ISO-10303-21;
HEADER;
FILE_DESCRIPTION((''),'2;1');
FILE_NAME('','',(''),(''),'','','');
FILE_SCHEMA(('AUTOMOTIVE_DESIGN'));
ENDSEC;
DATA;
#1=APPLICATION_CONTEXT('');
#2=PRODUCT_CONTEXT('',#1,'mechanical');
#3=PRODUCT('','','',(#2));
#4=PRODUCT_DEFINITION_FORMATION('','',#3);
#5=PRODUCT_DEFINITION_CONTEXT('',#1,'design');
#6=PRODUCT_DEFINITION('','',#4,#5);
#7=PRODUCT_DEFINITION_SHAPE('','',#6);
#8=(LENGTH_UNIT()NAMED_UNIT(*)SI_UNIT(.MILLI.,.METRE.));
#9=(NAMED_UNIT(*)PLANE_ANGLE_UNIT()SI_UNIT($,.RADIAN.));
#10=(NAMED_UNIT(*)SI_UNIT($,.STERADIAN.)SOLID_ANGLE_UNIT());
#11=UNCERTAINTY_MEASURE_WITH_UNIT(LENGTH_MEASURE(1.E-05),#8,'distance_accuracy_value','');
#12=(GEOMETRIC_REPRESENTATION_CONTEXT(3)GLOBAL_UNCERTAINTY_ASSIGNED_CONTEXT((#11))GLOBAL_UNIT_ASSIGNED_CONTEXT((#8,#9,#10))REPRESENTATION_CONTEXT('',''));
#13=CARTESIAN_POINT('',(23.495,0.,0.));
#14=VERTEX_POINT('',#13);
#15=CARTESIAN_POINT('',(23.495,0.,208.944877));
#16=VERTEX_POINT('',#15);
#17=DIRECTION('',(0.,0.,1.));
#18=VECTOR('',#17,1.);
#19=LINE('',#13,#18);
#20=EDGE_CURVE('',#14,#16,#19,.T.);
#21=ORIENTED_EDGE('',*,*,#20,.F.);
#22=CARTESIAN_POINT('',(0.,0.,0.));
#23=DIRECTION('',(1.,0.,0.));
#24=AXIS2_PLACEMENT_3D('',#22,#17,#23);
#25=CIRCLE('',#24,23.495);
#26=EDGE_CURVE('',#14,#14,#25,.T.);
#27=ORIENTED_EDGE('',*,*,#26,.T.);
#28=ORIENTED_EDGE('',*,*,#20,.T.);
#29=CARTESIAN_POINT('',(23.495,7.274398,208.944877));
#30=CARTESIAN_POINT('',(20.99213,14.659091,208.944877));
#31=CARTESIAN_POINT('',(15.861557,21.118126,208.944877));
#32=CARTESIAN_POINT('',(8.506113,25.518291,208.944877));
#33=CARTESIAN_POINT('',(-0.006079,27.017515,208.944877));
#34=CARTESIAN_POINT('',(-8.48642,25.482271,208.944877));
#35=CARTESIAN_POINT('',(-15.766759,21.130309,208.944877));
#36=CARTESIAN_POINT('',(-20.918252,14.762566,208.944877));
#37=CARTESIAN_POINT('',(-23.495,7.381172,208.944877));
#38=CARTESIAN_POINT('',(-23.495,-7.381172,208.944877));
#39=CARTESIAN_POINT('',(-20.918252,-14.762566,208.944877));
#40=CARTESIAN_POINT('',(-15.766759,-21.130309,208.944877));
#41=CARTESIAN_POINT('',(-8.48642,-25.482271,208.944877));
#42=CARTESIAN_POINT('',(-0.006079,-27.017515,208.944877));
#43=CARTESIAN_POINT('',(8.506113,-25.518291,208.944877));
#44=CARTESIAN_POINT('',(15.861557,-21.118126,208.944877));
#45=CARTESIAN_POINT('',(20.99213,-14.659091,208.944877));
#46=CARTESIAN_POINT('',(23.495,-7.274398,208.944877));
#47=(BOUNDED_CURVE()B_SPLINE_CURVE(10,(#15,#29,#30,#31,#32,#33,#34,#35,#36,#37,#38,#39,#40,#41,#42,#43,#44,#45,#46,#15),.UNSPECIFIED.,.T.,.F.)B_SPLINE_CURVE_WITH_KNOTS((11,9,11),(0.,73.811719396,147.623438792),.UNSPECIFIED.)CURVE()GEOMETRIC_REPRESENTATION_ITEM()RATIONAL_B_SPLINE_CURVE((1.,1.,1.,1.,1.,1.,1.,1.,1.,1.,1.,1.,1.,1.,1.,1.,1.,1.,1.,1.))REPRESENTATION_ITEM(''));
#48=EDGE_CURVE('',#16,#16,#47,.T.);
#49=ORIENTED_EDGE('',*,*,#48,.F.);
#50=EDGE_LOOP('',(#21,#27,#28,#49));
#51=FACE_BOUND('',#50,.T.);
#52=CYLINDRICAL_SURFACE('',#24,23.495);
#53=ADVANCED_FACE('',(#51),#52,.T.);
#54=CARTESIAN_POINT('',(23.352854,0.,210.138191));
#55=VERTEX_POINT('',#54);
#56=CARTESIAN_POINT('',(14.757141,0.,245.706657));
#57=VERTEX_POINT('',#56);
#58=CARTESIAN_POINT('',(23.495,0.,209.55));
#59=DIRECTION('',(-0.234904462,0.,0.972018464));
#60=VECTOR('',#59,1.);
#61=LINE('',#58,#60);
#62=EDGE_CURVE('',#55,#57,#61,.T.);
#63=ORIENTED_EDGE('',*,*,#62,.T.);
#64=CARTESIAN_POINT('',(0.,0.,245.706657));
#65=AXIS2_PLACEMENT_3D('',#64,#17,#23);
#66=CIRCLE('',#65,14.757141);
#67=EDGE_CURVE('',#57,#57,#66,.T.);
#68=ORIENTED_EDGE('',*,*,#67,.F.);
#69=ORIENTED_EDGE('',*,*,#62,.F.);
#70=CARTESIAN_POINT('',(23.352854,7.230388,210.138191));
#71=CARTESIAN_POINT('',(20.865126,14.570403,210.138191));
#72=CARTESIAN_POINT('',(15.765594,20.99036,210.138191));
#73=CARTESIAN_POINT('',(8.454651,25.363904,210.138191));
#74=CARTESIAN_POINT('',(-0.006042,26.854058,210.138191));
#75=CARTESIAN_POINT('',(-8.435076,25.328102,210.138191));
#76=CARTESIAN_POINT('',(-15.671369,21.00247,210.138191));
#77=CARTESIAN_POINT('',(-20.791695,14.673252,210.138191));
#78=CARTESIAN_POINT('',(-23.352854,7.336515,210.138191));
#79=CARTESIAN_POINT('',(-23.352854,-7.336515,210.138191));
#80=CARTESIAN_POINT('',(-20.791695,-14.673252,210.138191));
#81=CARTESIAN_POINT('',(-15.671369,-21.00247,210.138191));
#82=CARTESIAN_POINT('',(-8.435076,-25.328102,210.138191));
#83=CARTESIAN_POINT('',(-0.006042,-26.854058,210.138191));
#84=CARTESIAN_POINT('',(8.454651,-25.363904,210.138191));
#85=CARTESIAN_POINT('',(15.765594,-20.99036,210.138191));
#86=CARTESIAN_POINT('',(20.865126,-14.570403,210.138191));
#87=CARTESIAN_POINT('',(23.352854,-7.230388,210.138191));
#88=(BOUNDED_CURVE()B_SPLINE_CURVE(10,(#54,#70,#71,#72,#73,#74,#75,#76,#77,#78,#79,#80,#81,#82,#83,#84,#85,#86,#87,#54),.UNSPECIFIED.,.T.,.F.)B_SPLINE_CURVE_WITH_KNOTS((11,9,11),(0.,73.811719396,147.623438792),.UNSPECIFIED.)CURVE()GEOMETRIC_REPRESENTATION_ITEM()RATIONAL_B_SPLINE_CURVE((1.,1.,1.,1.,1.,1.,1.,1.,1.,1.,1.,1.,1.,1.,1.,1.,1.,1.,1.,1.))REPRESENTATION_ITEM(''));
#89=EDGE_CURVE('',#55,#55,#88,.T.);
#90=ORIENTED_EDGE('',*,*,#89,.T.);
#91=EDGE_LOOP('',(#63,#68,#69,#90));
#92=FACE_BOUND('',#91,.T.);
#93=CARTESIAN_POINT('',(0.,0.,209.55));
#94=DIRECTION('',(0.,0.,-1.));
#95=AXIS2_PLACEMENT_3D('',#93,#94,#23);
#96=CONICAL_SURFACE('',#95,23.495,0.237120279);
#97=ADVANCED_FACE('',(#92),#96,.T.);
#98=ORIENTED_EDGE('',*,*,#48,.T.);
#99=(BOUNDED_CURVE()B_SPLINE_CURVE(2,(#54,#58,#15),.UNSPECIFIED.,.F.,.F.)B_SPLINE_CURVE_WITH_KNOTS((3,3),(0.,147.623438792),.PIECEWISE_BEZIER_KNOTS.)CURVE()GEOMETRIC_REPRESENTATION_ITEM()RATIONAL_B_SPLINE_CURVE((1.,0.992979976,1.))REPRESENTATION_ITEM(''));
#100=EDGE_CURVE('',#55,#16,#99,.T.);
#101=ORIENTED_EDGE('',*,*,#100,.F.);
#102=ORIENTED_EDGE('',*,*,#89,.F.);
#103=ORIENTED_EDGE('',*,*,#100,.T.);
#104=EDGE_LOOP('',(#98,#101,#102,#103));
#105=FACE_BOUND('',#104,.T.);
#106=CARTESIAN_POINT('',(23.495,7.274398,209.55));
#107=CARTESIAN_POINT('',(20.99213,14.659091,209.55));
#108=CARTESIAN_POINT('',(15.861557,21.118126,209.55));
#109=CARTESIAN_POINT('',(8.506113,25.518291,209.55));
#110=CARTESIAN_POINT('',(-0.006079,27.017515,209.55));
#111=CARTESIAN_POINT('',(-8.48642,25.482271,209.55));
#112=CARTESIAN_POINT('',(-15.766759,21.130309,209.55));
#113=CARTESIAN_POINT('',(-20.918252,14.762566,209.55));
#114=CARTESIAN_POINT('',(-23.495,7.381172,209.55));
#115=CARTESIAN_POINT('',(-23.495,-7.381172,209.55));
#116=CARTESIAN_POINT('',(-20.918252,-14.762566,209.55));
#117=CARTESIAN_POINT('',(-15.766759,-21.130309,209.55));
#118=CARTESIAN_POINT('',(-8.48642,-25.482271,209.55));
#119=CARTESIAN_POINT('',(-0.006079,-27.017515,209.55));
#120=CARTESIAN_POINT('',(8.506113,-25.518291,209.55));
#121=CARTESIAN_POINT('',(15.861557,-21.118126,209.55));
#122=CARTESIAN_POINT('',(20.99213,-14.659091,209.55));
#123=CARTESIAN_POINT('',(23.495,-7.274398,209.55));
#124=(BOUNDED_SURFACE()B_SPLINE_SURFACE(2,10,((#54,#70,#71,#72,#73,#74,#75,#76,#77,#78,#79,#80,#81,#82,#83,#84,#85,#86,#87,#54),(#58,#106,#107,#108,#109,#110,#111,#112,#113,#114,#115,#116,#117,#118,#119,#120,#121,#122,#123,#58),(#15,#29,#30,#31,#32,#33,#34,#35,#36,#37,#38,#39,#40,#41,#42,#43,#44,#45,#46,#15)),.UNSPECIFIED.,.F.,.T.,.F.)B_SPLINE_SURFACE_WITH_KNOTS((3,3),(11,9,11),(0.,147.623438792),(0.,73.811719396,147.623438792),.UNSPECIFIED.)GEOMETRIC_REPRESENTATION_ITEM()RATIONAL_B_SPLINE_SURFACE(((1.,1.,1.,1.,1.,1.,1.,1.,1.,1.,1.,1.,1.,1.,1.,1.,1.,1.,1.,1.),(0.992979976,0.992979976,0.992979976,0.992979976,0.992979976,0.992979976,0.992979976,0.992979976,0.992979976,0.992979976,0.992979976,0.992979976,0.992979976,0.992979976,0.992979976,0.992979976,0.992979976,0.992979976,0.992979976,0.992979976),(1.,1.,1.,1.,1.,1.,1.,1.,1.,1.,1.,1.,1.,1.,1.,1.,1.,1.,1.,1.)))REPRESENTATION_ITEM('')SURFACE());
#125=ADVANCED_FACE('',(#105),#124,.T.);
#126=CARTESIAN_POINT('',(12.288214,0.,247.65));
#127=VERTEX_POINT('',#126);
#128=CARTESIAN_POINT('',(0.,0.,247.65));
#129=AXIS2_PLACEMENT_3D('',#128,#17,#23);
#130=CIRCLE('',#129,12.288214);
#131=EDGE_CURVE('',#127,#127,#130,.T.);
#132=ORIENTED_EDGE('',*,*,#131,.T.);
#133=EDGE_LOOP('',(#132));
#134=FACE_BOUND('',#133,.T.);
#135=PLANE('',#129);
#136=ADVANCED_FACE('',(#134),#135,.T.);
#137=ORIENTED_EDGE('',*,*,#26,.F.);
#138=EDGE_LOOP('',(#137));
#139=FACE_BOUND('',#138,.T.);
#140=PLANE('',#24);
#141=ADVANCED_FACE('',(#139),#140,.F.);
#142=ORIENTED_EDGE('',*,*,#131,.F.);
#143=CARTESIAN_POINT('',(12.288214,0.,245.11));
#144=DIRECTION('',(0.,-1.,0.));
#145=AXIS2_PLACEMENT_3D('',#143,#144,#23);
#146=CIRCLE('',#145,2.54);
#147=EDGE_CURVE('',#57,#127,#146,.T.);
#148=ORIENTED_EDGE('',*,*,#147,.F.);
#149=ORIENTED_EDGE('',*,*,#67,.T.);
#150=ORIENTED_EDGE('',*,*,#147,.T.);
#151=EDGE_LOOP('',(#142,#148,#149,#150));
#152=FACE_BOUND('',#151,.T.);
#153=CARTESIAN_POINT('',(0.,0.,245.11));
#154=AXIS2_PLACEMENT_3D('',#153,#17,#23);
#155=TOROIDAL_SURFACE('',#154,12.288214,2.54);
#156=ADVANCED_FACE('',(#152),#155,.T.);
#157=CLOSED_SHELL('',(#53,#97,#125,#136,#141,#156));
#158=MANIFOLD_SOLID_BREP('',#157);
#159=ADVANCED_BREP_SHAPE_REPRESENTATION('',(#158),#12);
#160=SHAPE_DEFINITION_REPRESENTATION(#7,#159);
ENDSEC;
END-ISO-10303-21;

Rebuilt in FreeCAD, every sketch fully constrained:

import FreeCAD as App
import Part
import Sketcher
from FreeCAD import Vector
Q = App.Units.Quantity


def edges_at(feature, points):
    """Names of the edges that pass closest to the given points."""
    edges = feature.Shape.Edges
    near = lambda p: min(range(len(edges)), key=lambda i: edges[i].distToShape(Part.Vertex(*p))[0])
    return sorted({f"Edge{near(p) + 1}" for p in points})


def add_polygon(sketch, points):
    """Adds a closed chain of lines whose ends are joined by coincident constraints."""
    first, n = sketch.GeometryCount, len(points)
    for a, b in zip(points, points[1:] + points[:1]):
        sketch.addGeometry(Part.LineSegment(App.Vector(*a, 0), App.Vector(*b, 0)), False)
    for i in range(n):
        sketch.addConstraint(Sketcher.Constraint("Coincident", first + i, 2, first + (i + 1) % n, 1))

doc = App.newDocument("Part")
params = doc.addObject("Spreadsheet::Sheet", "Params")
for row, (alias, value) in enumerate([
    ("sketch1_height", "9.75 in"),
    ("sketch1_height2", "8.25 in"),
    ("sketch1_width", "0.925 in"),
    ("sketch1_width2", "0.5625 in"),
    ("revolution_angle", "360 deg"),
    ("fillet_radius", "0.1 in"),
    ("fillet2_radius", "0.2 in"),
], start=1):
    params.set(f"A{row}", alias)
    params.set(f"B{row}", "=" + value)
    params.setAlias(f"B{row}", alias)

body = doc.addObject("PartDesign::Body", "Body")

# Sketch on XZ plane
sketch1 = body.newObject("Sketcher::SketchObject", "Sketch")
sketch1.AttachmentSupport = (doc.getObject("XZ_Plane"), [""])
sketch1.MapMode = "FlatFace"
add_polygon(sketch1, [(0, 247.65), (0, 0), (23.495, 0), (23.495, 209.55), (14.2875, 247.65)])  # lines 0-4
sketch1.addConstraint(Sketcher.Constraint("Vertical", 0))
sketch1.addConstraint(Sketcher.Constraint("Horizontal", 1))
sketch1.addConstraint(Sketcher.Constraint("Vertical", 2))
sketch1.addConstraint(Sketcher.Constraint("Horizontal", 4))
sketch1.addConstraint(Sketcher.Constraint("Coincident", 0, 2, -1, 1))
sketch1.addConstraint(Sketcher.Constraint("DistanceY", 0, 2, 0, 1, Q("9.75 in")))
sketch1.addConstraint(Sketcher.Constraint("DistanceY", 2, 1, 2, 2, Q("8.25 in")))
sketch1.addConstraint(Sketcher.Constraint("DistanceX", 1, 1, 1, 2, Q("0.925 in")))
sketch1.addConstraint(Sketcher.Constraint("DistanceX", 4, 2, 4, 1, Q("0.5625 in")))
sketch1.setExpression("Constraints[10]", "Params.sketch1_height")
sketch1.setExpression("Constraints[11]", "Params.sketch1_height2")
sketch1.setExpression("Constraints[12]", "Params.sketch1_width")
sketch1.setExpression("Constraints[13]", "Params.sketch1_width2")
revolution = body.newObject("PartDesign::Revolution", "Revolution")
revolution.Profile = sketch1
revolution.ReferenceAxis = (sketch1, ["V_Axis"])
revolution.setExpression("Angle", "Params.revolution_angle")
doc.recompute()

fillet = body.newObject("PartDesign::Fillet", "Fillet")
fillet.Base = (revolution, edges_at(revolution, [(-14.287, 0, 247.65)]))
fillet.setExpression("Radius", "Params.fillet_radius")
doc.recompute()

fillet2 = body.newObject("PartDesign::Fillet", "Fillet001")
fillet2.Base = (fillet, edges_at(fillet, [(-23.495, 0, 209.55)]))
fillet2.setExpression("Radius", "Params.fillet2_radius")

doc.recompute()
